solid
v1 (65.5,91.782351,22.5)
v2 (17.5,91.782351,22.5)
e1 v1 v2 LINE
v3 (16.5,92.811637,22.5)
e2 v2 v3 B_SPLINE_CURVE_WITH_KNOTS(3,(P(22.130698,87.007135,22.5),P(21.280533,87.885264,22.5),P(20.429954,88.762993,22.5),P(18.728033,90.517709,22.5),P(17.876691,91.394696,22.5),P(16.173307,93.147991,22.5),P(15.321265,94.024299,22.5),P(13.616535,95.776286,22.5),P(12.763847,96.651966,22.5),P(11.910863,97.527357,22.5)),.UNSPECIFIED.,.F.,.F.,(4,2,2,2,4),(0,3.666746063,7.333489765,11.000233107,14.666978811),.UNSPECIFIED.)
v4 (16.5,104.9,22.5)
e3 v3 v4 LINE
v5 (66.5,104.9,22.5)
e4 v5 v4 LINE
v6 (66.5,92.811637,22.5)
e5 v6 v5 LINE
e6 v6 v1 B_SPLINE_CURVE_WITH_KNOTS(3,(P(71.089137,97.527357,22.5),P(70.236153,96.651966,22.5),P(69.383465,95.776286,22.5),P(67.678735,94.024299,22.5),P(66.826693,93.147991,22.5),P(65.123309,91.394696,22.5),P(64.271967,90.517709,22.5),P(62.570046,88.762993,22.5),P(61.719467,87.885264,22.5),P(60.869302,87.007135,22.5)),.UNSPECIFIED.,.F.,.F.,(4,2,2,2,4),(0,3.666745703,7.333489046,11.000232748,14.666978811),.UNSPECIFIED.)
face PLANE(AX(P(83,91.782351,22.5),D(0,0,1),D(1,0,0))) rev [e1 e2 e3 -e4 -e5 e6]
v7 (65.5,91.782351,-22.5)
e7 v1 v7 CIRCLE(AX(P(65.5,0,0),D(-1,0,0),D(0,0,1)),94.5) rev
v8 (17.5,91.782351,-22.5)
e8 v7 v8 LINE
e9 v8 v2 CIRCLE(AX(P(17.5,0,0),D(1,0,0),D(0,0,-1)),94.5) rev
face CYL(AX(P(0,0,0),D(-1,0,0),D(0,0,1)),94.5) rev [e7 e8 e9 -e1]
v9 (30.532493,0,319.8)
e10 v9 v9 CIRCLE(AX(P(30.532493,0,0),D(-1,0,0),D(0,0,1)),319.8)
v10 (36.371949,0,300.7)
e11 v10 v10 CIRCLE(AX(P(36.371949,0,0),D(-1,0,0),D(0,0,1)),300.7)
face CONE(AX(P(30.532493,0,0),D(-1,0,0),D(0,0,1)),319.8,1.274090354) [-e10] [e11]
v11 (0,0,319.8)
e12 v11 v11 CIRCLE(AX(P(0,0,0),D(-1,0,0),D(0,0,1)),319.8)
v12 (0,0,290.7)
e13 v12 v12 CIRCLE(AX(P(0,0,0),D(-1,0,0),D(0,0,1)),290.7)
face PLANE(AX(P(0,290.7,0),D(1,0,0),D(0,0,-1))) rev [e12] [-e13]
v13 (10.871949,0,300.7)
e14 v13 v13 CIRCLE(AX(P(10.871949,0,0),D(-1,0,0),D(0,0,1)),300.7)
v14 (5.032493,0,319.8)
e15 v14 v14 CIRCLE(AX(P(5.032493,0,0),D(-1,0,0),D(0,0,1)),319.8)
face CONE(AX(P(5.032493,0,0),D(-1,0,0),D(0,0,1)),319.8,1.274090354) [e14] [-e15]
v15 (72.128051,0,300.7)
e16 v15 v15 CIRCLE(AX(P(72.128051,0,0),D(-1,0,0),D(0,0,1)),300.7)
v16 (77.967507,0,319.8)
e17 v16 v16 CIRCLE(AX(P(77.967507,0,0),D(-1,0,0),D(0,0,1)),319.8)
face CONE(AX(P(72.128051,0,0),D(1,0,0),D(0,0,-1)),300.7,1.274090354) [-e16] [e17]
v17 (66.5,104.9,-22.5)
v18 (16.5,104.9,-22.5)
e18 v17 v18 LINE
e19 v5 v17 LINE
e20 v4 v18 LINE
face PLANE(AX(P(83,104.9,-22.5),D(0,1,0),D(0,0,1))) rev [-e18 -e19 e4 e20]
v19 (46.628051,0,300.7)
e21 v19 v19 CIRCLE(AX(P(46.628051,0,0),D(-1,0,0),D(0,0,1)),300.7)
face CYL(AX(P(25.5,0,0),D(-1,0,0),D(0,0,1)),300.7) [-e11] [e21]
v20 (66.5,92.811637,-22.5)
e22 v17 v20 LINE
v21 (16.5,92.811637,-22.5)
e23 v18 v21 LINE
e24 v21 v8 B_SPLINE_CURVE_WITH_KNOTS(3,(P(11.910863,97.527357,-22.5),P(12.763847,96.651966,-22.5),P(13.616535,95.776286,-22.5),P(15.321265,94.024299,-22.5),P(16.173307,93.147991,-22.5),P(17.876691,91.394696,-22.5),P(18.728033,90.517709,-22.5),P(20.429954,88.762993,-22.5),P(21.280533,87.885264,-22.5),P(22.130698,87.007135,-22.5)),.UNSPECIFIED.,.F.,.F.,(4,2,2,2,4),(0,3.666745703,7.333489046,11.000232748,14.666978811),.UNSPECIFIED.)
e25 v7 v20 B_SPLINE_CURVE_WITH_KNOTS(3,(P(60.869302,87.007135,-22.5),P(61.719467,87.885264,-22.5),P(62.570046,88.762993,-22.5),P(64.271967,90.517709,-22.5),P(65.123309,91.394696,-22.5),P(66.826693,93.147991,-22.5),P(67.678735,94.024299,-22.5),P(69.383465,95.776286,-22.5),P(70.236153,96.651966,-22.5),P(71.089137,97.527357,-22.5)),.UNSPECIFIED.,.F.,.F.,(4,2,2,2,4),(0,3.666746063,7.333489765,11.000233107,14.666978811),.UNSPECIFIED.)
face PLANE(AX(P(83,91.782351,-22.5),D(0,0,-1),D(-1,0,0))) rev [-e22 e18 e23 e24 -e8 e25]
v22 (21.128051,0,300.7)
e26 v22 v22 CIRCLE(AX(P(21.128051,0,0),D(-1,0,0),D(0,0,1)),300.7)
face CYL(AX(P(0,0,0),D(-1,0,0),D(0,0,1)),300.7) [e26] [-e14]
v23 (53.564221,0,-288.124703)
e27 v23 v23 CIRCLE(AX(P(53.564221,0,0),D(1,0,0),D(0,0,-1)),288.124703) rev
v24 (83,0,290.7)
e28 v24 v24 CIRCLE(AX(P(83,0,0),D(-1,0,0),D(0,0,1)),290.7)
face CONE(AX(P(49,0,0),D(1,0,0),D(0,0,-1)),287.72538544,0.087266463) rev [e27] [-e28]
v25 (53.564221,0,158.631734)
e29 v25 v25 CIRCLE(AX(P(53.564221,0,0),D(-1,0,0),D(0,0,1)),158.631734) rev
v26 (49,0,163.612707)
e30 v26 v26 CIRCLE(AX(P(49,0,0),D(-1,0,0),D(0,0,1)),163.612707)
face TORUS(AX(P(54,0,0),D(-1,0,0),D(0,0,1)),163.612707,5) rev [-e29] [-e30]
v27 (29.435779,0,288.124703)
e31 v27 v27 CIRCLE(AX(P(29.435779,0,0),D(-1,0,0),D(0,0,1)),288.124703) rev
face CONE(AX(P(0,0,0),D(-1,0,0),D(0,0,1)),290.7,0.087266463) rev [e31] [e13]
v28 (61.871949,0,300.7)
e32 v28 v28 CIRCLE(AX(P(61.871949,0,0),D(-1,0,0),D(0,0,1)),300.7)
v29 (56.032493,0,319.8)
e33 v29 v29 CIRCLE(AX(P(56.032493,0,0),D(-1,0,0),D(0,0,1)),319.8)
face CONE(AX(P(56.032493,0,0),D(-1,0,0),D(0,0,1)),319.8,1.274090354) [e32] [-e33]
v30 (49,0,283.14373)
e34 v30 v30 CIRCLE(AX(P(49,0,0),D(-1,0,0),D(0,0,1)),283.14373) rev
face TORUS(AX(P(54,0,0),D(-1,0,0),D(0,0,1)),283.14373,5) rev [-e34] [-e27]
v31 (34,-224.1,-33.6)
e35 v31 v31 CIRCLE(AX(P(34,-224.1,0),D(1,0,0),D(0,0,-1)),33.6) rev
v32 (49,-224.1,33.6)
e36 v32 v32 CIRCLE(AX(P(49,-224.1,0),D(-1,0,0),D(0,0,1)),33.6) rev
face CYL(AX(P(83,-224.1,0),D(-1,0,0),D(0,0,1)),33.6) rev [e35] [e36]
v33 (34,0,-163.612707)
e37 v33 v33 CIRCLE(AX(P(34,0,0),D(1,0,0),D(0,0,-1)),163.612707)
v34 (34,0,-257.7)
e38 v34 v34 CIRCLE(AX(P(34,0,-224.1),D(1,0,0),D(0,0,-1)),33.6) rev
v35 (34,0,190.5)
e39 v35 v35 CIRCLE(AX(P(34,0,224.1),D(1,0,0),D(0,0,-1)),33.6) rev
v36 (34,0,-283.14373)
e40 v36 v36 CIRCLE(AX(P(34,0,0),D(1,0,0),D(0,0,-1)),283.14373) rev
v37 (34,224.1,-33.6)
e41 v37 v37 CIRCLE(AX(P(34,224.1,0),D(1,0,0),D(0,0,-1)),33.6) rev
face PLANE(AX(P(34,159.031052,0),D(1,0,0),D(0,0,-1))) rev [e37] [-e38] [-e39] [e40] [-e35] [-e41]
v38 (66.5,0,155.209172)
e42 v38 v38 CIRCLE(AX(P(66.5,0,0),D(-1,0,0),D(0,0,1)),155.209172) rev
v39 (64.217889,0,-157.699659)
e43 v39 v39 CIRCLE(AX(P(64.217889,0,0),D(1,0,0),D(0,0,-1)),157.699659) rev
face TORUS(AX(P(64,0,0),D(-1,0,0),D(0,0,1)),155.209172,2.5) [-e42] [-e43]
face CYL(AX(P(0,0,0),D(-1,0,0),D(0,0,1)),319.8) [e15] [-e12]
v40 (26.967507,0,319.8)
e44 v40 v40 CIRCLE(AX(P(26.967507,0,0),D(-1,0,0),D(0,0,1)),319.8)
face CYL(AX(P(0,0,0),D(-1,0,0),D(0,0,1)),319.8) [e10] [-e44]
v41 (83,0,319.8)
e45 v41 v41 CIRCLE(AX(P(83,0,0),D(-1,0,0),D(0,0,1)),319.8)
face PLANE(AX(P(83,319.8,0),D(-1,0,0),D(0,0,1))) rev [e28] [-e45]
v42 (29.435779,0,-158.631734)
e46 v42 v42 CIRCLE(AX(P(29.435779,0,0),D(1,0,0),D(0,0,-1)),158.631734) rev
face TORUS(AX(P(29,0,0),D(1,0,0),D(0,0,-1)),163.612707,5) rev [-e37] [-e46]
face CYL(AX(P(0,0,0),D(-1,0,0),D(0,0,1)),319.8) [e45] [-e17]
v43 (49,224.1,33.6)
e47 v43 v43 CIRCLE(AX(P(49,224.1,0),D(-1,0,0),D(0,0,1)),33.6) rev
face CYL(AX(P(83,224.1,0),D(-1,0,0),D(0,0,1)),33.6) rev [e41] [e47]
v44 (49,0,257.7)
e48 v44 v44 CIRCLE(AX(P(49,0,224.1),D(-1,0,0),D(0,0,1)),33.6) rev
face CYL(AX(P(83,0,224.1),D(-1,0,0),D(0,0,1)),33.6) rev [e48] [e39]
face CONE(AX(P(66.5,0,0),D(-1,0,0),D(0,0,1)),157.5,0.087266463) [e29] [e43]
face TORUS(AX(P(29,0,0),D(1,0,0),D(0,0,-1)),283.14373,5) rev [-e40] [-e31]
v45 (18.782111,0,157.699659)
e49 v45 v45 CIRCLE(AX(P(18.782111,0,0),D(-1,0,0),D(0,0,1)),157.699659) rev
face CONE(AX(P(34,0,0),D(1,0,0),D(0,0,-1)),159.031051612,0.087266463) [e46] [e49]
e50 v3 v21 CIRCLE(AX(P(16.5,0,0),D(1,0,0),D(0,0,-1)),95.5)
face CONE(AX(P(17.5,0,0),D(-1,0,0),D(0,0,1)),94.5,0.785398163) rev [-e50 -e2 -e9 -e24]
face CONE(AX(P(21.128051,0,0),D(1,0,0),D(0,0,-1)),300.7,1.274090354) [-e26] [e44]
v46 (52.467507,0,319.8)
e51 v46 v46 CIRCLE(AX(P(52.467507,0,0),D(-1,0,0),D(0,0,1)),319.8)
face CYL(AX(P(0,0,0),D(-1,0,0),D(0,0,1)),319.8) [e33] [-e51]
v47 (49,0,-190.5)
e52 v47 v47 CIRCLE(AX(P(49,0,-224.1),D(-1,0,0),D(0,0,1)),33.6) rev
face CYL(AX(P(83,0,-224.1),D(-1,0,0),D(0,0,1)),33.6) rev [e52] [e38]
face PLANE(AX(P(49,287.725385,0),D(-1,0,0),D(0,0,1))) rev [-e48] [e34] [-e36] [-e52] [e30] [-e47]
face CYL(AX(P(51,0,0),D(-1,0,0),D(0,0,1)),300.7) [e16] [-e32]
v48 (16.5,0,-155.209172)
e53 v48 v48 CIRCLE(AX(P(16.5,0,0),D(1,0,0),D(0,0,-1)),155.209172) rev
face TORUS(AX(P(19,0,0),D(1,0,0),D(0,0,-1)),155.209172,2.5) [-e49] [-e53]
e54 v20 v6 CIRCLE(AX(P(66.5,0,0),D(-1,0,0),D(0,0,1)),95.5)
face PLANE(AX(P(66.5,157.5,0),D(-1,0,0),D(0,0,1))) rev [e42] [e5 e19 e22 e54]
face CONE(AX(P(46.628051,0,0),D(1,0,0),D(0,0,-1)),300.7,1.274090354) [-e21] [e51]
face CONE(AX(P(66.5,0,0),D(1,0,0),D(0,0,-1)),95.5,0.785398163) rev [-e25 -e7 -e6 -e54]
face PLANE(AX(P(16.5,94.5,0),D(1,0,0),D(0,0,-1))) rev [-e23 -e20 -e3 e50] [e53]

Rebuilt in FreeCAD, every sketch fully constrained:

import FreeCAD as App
import Part
import Sketcher

V = App.Vector
Q = App.Units.Quantity


def edges_at(feature, points):
    """Names of the edges that pass closest to the given points."""
    edges = feature.Shape.Edges
    near = lambda p: min(range(len(edges)), key=lambda i: edges[i].distToShape(Part.Vertex(*p))[0])
    return sorted({f"Edge{near(p) + 1}" for p in points})


def add_polygon(sketch, points):
    """Adds a closed chain of lines whose ends are joined by coincident constraints."""
    first, n = sketch.GeometryCount, len(points)
    for a, b in zip(points, points[1:] + points[:1]):
        sketch.addGeometry(Part.LineSegment(App.Vector(*a, 0), App.Vector(*b, 0)), False)
    for i in range(n):
        sketch.addConstraint(Sketcher.Constraint("Coincident", first + i, 2, first + (i + 1) % n, 1))

doc = App.newDocument("Part")
body = doc.addObject("PartDesign::Body", "Body")

sketch1 = body.newObject("Sketcher::SketchObject", "Sketch")
sketch1.AttachmentSupport = (doc.getObject("XY_Plane"), [""])
sketch1.MapMode = "FlatFace"
add_polygon(sketch1, [(16, 158), (16, 94), (66, 94), (66, 158), (49, 159), (49, 288), (83, 291), (83, 320), (0, 320), (0, 291), (34, 288), (34, 159)])
sketch1.addConstraint([
    Sketcher.Constraint("Vertical", 0),
    Sketcher.Constraint("Horizontal", 1),
    Sketcher.Constraint("Vertical", 2),
    Sketcher.Constraint("Vertical", 4),
    Sketcher.Constraint("Vertical", 6),
    Sketcher.Constraint("Horizontal", 7),
    Sketcher.Constraint("Vertical", 8),
    Sketcher.Constraint("Vertical", 10),
    Sketcher.Constraint("PointOnObject", 7, 2, -2),
    Sketcher.Constraint("Parallel", 3, 9),
    Sketcher.Constraint("Parallel", 5, 11),
    Sketcher.Constraint("Horizontal", 5, 2, 8, 2),
    Sketcher.Constraint("Horizontal", 4, 2, 9, 2),
    Sketcher.Constraint("Horizontal", 3, 2, 10, 2),
    Sketcher.Constraint("Horizontal", 2, 2, 11, 2),
    Sketcher.Constraint("Equal", 5, 9),
    Sketcher.Constraint("DistanceX", 1, 1, 1, 2, Q("50 mm")),
    Sketcher.Constraint("DistanceX", 7, 2, 7, 1, Q("83 mm")),
    Sketcher.Constraint("DistanceY", 0, 2, 0, 1, Q("63 mm")),
    Sketcher.Constraint("Angle", 3, Q("175 deg")),
    Sketcher.Constraint("DistanceY", 6, 1, 6, 2, Q("29.1 mm")),
    Sketcher.Constraint("DistanceX", -1, 1, 3, 2, Q("49 mm")),
    Sketcher.Constraint("DistanceY", -1, 1, 0, 2, Q("94.5 mm")),
    Sketcher.Constraint("DistanceY", -1, 1, 5, 2, Q("290.7 mm")),
])
revolution = body.newObject("PartDesign::Revolution", "Revolution")
revolution.Profile = sketch1
revolution.ReferenceAxis = (sketch1, ["H_Axis"])
revolution.Angle = 360

sketch2 = body.newObject("Sketcher::SketchObject", "Sketch001")
sketch2.AttachmentSupport = (doc.getObject("XY_Plane"), [""])
sketch2.MapMode = "FlatFace"
add_polygon(sketch2, [(21, 301), (27, 320), (5, 320), (11, 301)])
sketch2.addConstraint([
    Sketcher.Constraint("Horizontal", 1),
    Sketcher.Constraint("Horizontal", 3),
    Sketcher.Constraint("Equal", 0, 2),
    Sketcher.Constraint("Angle", 0, Q("73 deg")),
    Sketcher.Constraint("DistanceY", -1, 1, 0, 2, Q("319.8 mm")),
    Sketcher.Constraint("DistanceY", -1, 1, 2, 2, Q("300.7 mm")),
    Sketcher.Constraint("DistanceX", 1, 2, 1, 1, Q("21.935015 mm")),
    Sketcher.Constraint("DistanceX", -1, 1, 2, 2, Q("10.871949 mm")),
])
groove = body.newObject("PartDesign::Groove", "Groove")
groove.Profile = sketch2
groove.ReferenceAxis = (sketch2, ["H_Axis"])
groove.Angle = 360
doc.recompute()

linearpattern = body.newObject("PartDesign::LinearPattern", "LinearPattern")
linearpattern.Originals = [groove]
linearpattern.Direction = (doc.getObject("X_Axis"), [""])
linearpattern.Mode = "offset"
linearpattern.Offset = 25.5
linearpattern.Occurrences = 3
body.Tip = linearpattern
doc.recompute()

chamfer = body.newObject("PartDesign::Chamfer", "Chamfer")
chamfer.Base = (linearpattern, edges_at(linearpattern, [(16.5, 0, -94.5), (66.5, 0, -94.5)]))
chamfer.Size = 1

sketch3 = body.newObject("Sketcher::SketchObject", "Sketch002")
sketch3.AttachmentSupport = (doc.getObject("YZ_Plane"), [""])
sketch3.MapMode = "FlatFace"
sketch3.AttachmentOffset = App.Placement(V(0, 0, 16.5), App.Rotation())
add_polygon(sketch3, [(105, -22), (92, -22), (92, 22), (105, 22)])
sketch3.addConstraint([
    Sketcher.Constraint("Horizontal", 0),
    Sketcher.Constraint("Vertical", 1),
    Sketcher.Constraint("Horizontal", 2),
    Sketcher.Constraint("Vertical", 3),
    Sketcher.Constraint("DistanceY", 1, 1, 1, 2, Q("45 mm")),
    Sketcher.Constraint("DistanceY", 0, 2, -1, 1, Q("22.5 mm")),
    Sketcher.Constraint("DistanceX", -1, 1, 2, 2, Q("104.9 mm")),
    Sketcher.Constraint("DistanceX", 0, 2, 0, 1, Q("13.117648 mm")),
])
pocket1 = body.newObject("PartDesign::Pocket", "Pocket")
pocket1.Profile = sketch3
pocket1.Type = "ThroughAll"
pocket1.Reversed = True
doc.recompute()

fillet = body.newObject("PartDesign::Fillet", "Fillet")
fillet.Base = (pocket1, edges_at(pocket1, [
    (34, 0, -287.725),
    (34, 0, -159.031),
    (49, 0, -159.031),
    (49, 0, -287.725),
]))
fillet.Radius = 5
doc.recompute()

fillet2 = body.newObject("PartDesign::Fillet", "Fillet001")
fillet2.Base = (fillet, edges_at(fillet, [(16.5, 0, -157.5), (66.5, 0, -157.5)]))
fillet2.Radius = 2.5

sketch4 = body.newObject("Sketcher::SketchObject", "Sketch003")
sketch4.AttachmentSupport = (doc.getObject("YZ_Plane"), [""])
sketch4.MapMode = "FlatFace"
sketch4.addGeometry(Part.Circle(V(224, 0, 0), V(0, 0, 1), 34), False)
sketch4.addConstraint([
    Sketcher.Constraint("PointOnObject", 0, 3, -1),
    Sketcher.Constraint("Diameter", 0, Q("67.2 mm")),
    Sketcher.Constraint("DistanceX", -1, 1, 0, 3, Q("224.1 mm")),
])
pocket2 = body.newObject("PartDesign::Pocket", "Pocket001")
pocket2.Profile = sketch4
pocket2.Type = "ThroughAll"
pocket2.Reversed = True
doc.recompute()

polarpattern = body.newObject("PartDesign::PolarPattern", "PolarPattern")
polarpattern.Originals = [pocket2]
polarpattern.Axis = (doc.getObject("X_Axis"), [""])
polarpattern.Angle = 360
polarpattern.Occurrences = 4
body.Tip = polarpattern

doc.recompute()
